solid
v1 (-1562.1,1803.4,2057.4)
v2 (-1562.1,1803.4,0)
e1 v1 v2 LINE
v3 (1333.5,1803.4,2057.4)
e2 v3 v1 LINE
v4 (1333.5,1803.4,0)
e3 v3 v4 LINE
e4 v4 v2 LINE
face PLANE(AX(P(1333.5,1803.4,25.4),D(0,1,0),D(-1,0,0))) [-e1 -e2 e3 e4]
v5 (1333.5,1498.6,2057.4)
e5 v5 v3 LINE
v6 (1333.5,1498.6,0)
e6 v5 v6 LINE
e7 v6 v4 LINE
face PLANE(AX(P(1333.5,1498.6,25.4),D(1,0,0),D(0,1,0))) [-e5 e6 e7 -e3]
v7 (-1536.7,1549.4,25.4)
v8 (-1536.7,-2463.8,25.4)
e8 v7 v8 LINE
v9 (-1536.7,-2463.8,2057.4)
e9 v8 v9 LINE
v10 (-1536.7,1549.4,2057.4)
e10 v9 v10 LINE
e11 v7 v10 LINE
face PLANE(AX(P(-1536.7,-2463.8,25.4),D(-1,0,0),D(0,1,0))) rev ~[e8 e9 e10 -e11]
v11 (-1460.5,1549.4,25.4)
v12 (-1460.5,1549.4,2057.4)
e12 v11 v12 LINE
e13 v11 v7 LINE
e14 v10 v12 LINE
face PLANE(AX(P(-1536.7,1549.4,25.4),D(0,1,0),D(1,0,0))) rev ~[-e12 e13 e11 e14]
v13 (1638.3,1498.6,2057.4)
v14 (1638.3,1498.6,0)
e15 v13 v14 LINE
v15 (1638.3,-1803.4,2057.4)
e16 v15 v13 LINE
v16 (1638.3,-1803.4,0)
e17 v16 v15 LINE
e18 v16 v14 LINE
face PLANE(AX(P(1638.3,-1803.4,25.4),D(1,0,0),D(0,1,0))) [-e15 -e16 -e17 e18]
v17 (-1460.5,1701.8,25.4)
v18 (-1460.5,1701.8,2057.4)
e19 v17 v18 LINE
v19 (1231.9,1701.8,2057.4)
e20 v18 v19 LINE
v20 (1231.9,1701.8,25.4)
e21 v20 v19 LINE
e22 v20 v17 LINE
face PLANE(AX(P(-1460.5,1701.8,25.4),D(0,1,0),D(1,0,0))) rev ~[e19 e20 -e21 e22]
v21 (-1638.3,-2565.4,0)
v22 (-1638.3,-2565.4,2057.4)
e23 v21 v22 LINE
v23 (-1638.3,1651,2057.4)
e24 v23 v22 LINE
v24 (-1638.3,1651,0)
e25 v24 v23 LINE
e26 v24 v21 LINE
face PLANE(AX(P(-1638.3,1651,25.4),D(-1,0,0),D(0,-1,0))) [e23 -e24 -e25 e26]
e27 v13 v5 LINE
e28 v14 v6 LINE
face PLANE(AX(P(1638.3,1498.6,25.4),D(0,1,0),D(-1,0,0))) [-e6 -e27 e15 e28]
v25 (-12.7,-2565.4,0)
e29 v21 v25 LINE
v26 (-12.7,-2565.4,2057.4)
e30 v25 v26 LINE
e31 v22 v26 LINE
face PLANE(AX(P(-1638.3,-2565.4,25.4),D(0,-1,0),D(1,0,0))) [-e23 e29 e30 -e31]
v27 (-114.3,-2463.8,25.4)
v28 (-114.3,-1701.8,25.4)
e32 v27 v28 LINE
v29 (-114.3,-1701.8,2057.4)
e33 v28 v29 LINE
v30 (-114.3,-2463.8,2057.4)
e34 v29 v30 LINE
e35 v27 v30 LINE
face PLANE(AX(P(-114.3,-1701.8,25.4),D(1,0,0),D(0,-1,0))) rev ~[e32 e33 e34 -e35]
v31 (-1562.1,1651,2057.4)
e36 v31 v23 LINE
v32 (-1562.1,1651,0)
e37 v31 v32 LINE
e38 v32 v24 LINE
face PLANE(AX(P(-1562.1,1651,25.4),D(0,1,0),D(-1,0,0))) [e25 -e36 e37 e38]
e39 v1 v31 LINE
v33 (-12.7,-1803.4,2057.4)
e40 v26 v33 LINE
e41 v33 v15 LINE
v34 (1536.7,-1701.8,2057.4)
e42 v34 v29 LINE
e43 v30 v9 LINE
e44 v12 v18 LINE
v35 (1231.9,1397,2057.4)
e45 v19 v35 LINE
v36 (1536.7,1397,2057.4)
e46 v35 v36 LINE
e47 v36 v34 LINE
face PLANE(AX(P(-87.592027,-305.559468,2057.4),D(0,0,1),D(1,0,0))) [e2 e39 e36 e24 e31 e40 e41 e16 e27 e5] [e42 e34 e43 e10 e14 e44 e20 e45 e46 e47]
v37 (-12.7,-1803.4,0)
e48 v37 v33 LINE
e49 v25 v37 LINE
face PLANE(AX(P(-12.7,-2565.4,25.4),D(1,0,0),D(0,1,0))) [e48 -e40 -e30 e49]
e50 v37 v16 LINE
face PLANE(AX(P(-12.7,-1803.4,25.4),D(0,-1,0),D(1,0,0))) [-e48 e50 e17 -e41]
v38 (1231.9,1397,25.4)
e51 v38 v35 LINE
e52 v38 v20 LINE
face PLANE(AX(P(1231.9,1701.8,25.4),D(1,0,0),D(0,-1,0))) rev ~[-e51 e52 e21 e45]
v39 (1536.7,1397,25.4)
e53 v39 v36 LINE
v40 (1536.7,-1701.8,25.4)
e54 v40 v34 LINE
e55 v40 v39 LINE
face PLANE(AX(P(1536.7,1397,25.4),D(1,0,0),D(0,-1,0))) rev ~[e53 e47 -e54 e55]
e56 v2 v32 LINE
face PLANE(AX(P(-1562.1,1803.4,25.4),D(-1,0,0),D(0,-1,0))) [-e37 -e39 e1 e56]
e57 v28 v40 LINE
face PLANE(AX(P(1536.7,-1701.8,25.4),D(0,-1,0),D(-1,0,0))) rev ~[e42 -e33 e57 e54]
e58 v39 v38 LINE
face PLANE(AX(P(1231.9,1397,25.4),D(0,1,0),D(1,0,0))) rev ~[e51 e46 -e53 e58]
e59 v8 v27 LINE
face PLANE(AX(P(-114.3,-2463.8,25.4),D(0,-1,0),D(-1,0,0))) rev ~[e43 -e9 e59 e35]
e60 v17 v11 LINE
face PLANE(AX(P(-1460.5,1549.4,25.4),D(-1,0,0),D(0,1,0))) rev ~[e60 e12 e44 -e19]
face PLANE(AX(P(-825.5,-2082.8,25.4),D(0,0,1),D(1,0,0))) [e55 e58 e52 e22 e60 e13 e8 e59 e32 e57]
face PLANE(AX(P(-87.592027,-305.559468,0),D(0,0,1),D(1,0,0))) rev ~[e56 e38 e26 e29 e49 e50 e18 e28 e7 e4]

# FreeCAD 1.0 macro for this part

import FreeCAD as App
import Part
import Sketcher
from FreeCAD import Vector
Q = App.Units.Quantity


def add_polygon(sketch, points):
    """Adds a closed chain of lines whose ends are joined by coincident constraints."""
    first, n = sketch.GeometryCount, len(points)
    for a, b in zip(points, points[1:] + points[:1]):
        sketch.addGeometry(Part.LineSegment(App.Vector(*a, 0), App.Vector(*b, 0)), False)
    for i in range(n):
        sketch.addConstraint(Sketcher.Constraint("Coincident", first + i, 2, first + (i + 1) % n, 1))

doc = App.newDocument("Part")
params = doc.addObject("Spreadsheet::Sheet", "Params")
for row, (alias, value) in enumerate([
    ("sketch1_width", "56 in"),
    ("sketch1_width2", "65 in"),
    ("sketch1_width3", "12 in"),
    ("sketch1_width4", "106 in"),
    ("sketch1_height", "30 in"),
    ("pad1_length", "1 in"),
    ("sketch2_width", "3 in"),
    ("sketch2_width2", "64 in"),
    ("sketch2_width3", "65 in"),
    ("sketch2_width4", "12 in"),
    ("sketch2_width5", "56 in"),
    ("pad2_length", "80 in"),
    ("pad2_length2", "1 in"),
], start=1):
    params.set(f"A{row}", alias)
    params.set(f"B{row}", "=" + value)
    params.setAlias(f"B{row}", alias)

body = doc.addObject("PartDesign::Body", "Body")

sketch1 = doc.addObject("Sketcher::SketchObject", "Sketch")
body.addObject(sketch1)
sketch1.AttachmentSupport = (doc.XY_Plane, [""])
sketch1.MapMode = "FlatFace"
add_polygon(sketch1, [(-1537, -2464), (-114, -2464), (-114, -1702), (1537, -1702), (1537, 1397), (1232, 1397), (1232, 1702), (-1460, 1702), (-1460, 1549), (-1537, 1549)])
sketch1.addConstraint([
    Sketcher.Constraint("Horizontal", 0),
    Sketcher.Constraint("Vertical", 1),
    Sketcher.Constraint("Horizontal", 2),
    Sketcher.Constraint("Vertical", 3),
    Sketcher.Constraint("Horizontal", 4),
    Sketcher.Constraint("Vertical", 5),
    Sketcher.Constraint("Horizontal", 6),
    Sketcher.Constraint("Vertical", 7),
    Sketcher.Constraint("Horizontal", 8),
    Sketcher.Constraint("Vertical", 9),
    Sketcher.Constraint("Equal", 4, 5),
    Sketcher.Constraint("DistanceX", 0, 1, 0, 2, Q("56 in")),
    Sketcher.Constraint("DistanceX", 2, 1, 2, 2, Q("65 in")),
    Sketcher.Constraint("DistanceX", 4, 2, 4, 1, Q("12 in")),
    Sketcher.Constraint("DistanceX", 6, 2, 6, 1, Q("106 in")),
    Sketcher.Constraint("DistanceY", 1, 1, 1, 2, Q("30 in")),
    Sketcher.Constraint("DistanceY", 3, 1, 3, 2, Q("122 in")),
    Sketcher.Constraint("DistanceY", 7, 2, 7, 1, Q("6 in")),
    Sketcher.Constraint("DistanceY", 0, 2, -1, 1, Q("97 in")),
    Sketcher.Constraint("DistanceX", 0, 2, -1, 1, Q("4.5 in")),
])
sketch1.setExpression("Constraints[21]", "Params.sketch1_width")
sketch1.setExpression("Constraints[22]", "Params.sketch1_width2")
sketch1.setExpression("Constraints[23]", "Params.sketch1_width3")
sketch1.setExpression("Constraints[24]", "Params.sketch1_width4")
sketch1.setExpression("Constraints[25]", "Params.sketch1_height")
pad1 = doc.addObject("PartDesign::Pad", "Pad")
body.addObject(pad1)
pad1.Profile = sketch1
pad1.setExpression("Length", "Params.pad1_length")

sketch2 = doc.addObject("Sketcher::SketchObject", "Sketch001")
body.addObject(sketch2)
sketch2.AttachmentSupport = (doc.XY_Plane, [""])
sketch2.MapMode = "FlatFace"
sketch2.AttachmentOffset = App.Placement(Vector(0, 0, 1 * 25.4), App.Rotation())
add_polygon(sketch2, [(-1562, 1651), (-1638, 1651), (-1638, -2565), (-13, -2565), (-13, -1803), (1638, -1803), (1638, 1499), (1334, 1499), (1334, 1803), (-1562, 1803)])
add_polygon(sketch2, [(1537, -1702), (-114, -1702), (-114, -2464), (-1537, -2464), (-1537, 1549), (-1460, 1549), (-1460, 1702), (1232, 1702), (1232, 1397), (1537, 1397)])
sketch2.addConstraint([
    Sketcher.Constraint("Horizontal", 0),
    Sketcher.Constraint("Vertical", 1),
    Sketcher.Constraint("Horizontal", 2),
    Sketcher.Constraint("Vertical", 3),
    Sketcher.Constraint("Horizontal", 4),
    Sketcher.Constraint("Vertical", 5),
    Sketcher.Constraint("Horizontal", 6),
    Sketcher.Constraint("Vertical", 7),
    Sketcher.Constraint("Horizontal", 8),
    Sketcher.Constraint("Vertical", 9),
    Sketcher.Constraint("Horizontal", 10),
    Sketcher.Constraint("Vertical", 11),
    Sketcher.Constraint("Horizontal", 12),
    Sketcher.Constraint("Vertical", 13),
    Sketcher.Constraint("Horizontal", 14),
    Sketcher.Constraint("Vertical", 15),
    Sketcher.Constraint("Horizontal", 16),
    Sketcher.Constraint("Vertical", 17),
    Sketcher.Constraint("Horizontal", 18),
    Sketcher.Constraint("Vertical", 19),
    Sketcher.Constraint("Equal", 4, 10),
    Sketcher.Constraint("Equal", 0, 14),
    Sketcher.Constraint("Equal", 6, 18),
    Sketcher.Constraint("Equal", 18, 7),
    Sketcher.Constraint("Equal", 3, 11),
    Sketcher.Constraint("Equal", 9, 15),
    Sketcher.Constraint("Equal", 7, 17),
    Sketcher.Constraint("DistanceX", 0, 2, 0, 1, Q("3 in")),
    Sketcher.Constraint("DistanceX", 2, 1, 2, 2, Q("64 in")),
    Sketcher.Constraint("DistanceX", 4, 1, 4, 2, Q("65 in")),
    Sketcher.Constraint("DistanceX", 6, 2, 6, 1, Q("12 in")),
    Sketcher.Constraint("DistanceX", 12, 2, 12, 1, Q("56 in")),
    Sketcher.Constraint("DistanceY", 1, 2, 1, 1, Q("166 in")),
    Sketcher.Constraint("DistanceY", 3, 1, 3, 2, Q("30 in")),
    Sketcher.Constraint("DistanceY", 5, 1, 5, 2, Q("130 in")),
    Sketcher.Constraint("DistanceY", 13, 1, 13, 2, Q("158 in")),
    Sketcher.Constraint("DistanceY", -1, 1, 0, 2, Q("65 in")),
    Sketcher.Constraint("DistanceY", 10, 2, -1, 1, Q("67 in")),
    Sketcher.Constraint("DistanceX", 10, 2, 3, 2, Q("4 in")),
    Sketcher.Constraint("DistanceX", 0, 2, -1, 1, Q("64.5 in")),
])
sketch2.setExpression("Constraints[47]", "Params.sketch2_width")
sketch2.setExpression("Constraints[48]", "Params.sketch2_width2")
sketch2.setExpression("Constraints[49]", "Params.sketch2_width3")
sketch2.setExpression("Constraints[50]", "Params.sketch2_width4")
sketch2.setExpression("Constraints[51]", "Params.sketch2_width5")
pad2 = doc.addObject("PartDesign::Pad", "Pad001")
body.addObject(pad2)
pad2.Profile = sketch2
pad2.Type = "TwoLengths"
pad2.setExpression("Length", "Params.pad2_length")
pad2.setExpression("Length2", "Params.pad2_length2")

doc.recompute()
